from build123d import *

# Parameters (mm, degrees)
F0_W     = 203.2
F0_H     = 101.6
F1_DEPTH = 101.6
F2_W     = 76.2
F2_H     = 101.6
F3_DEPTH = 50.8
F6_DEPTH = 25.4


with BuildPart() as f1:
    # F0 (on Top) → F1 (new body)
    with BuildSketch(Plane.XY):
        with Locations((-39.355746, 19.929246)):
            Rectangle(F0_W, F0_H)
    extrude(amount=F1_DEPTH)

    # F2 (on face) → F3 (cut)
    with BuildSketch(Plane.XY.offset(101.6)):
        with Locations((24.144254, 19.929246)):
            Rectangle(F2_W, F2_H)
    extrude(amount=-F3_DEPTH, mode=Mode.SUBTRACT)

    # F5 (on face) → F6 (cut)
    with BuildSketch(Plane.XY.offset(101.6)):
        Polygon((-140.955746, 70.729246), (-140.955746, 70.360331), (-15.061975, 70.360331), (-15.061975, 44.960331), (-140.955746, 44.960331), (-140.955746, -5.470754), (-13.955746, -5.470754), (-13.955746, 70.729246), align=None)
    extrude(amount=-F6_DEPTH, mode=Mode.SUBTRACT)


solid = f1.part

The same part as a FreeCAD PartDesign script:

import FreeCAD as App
import Part
import Sketcher

V = App.Vector
Q = App.Units.Quantity


def add_polygon(sketch, points):
    """Adds a closed chain of lines whose ends are joined by coincident constraints."""
    first, n = sketch.GeometryCount, len(points)
    for a, b in zip(points, points[1:] + points[:1]):
        sketch.addGeometry(Part.LineSegment(App.Vector(*a, 0), App.Vector(*b, 0)), False)
    for i in range(n):
        sketch.addConstraint(Sketcher.Constraint("Coincident", first + i, 2, first + (i + 1) % n, 1))

doc = App.newDocument("Part")
body = doc.addObject("PartDesign::Body", "Body")

# Sketch on XY plane
sketch1 = body.newObject("Sketcher::SketchObject", "Sketch")
sketch1.AttachmentSupport = (doc.getObject("XY_Plane"), [""])
sketch1.MapMode = "FlatFace"
add_polygon(sketch1, [(-140.955746, 70.729246), (-140.955746, -30.870754), (62.244254, -30.870754), (62.244254, 70.729246)])  # lines 0-3
sketch1.addConstraint(Sketcher.Constraint("Vertical", 0))
sketch1.addConstraint(Sketcher.Constraint("Horizontal", 1))
sketch1.addConstraint(Sketcher.Constraint("Vertical", 2))
sketch1.addConstraint(Sketcher.Constraint("Horizontal", 3))
sketch1.addConstraint(Sketcher.Constraint("DistanceX", 1, 1, 1, 2, Q("8 in")))
sketch1.addConstraint(Sketcher.Constraint("DistanceY", 0, 2, 0, 1, Q("4 in")))
sketch1.addConstraint(Sketcher.Constraint("DistanceX", 0, 2, -1, 1, 140.955746))
sketch1.addConstraint(Sketcher.Constraint("DistanceY", 0, 2, -1, 1, 30.870754))
pad1 = body.newObject("PartDesign::Pad", "Pad")
pad1.Profile = sketch1
pad1.Length = Q("4 in")

# Sketch on XY plane
sketch2 = body.newObject("Sketcher::SketchObject", "Sketch001")
sketch2.AttachmentSupport = (doc.getObject("XY_Plane"), [""])
sketch2.MapMode = "FlatFace"
sketch2.AttachmentOffset = App.Placement(V(0, 0, 4 * 25.4), App.Rotation())
add_polygon(sketch2, [(-13.955746, 70.729246), (-13.955746, -30.870754), (62.244254, -30.870754), (62.244254, 70.729246)])  # lines 0-3
sketch2.addConstraint(Sketcher.Constraint("Vertical", 0))
sketch2.addConstraint(Sketcher.Constraint("Horizontal", 1))
sketch2.addConstraint(Sketcher.Constraint("Vertical", 2))
sketch2.addConstraint(Sketcher.Constraint("Horizontal", 3))
sketch2.addConstraint(Sketcher.Constraint("DistanceX", 1, 1, 1, 2, Q("3 in")))
sketch2.addConstraint(Sketcher.Constraint("DistanceY", 0, 2, 0, 1, Q("4 in")))
sketch2.addConstraint(Sketcher.Constraint("DistanceX", 0, 2, -1, 1, 13.955746))
sketch2.addConstraint(Sketcher.Constraint("DistanceY", 0, 2, -1, 1, 30.870754))
pocket1 = body.newObject("PartDesign::Pocket", "Pocket")
pocket1.Profile = sketch2
pocket1.Length = Q("2 in")

# Sketch on XY plane
sketch3 = body.newObject("Sketcher::SketchObject", "Sketch002")
sketch3.AttachmentSupport = (doc.getObject("XY_Plane"), [""])
sketch3.MapMode = "FlatFace"
sketch3.AttachmentOffset = App.Placement(V(0, 0, 4 * 25.4), App.Rotation())
add_polygon(sketch3, [(-140.955746, 70.729246), (-140.955746, 70.360331), (-15.061975, 70.360331), (-15.061975, 44.960331), (-140.955746, 44.960331), (-140.955746, -5.470754), (-13.955746, -5.470754), (-13.955746, 70.729246)])  # lines 0-7
sketch3.addConstraint(Sketcher.Constraint("Vertical", 0))
sketch3.addConstraint(Sketcher.Constraint("Horizontal", 1))
sketch3.addConstraint(Sketcher.Constraint("Vertical", 2))
sketch3.addConstraint(Sketcher.Constraint("Horizontal", 3))
sketch3.addConstraint(Sketcher.Constraint("Vertical", 4))
sketch3.addConstraint(Sketcher.Constraint("Horizontal", 5))
sketch3.addConstraint(Sketcher.Constraint("Vertical", 6))
sketch3.addConstraint(Sketcher.Constraint("Horizontal", 7))
sketch3.addConstraint(Sketcher.Constraint("Vertical", 0, 2, 3, 2))
sketch3.addConstraint(Sketcher.Constraint("DistanceX", 5, 1, 5, 2, Q("5 in")))
sketch3.addConstraint(Sketcher.Constraint("DistanceY", 2, 2, 2, 1, Q("1 in")))
sketch3.addConstraint(Sketcher.Constraint("DistanceY", 6, 1, 6, 2, Q("3 in")))
sketch3.addConstraint(Sketcher.Constraint("DistanceX", 1, 1, 1, 2, 125.893771))
sketch3.addConstraint(Sketcher.Constraint("DistanceY", 0, 2, 0, 1, 0.368915))
sketch3.addConstraint(Sketcher.Constraint("DistanceY", -1, 1, 0, 2, 70.360331))
sketch3.addConstraint(Sketcher.Constraint("DistanceX", 0, 2, -1, 1, 140.955746))
pocket2 = body.newObject("PartDesign::Pocket", "Pocket001")
pocket2.Profile = sketch3
pocket2.Length = Q("1 in")

doc.recompute()
